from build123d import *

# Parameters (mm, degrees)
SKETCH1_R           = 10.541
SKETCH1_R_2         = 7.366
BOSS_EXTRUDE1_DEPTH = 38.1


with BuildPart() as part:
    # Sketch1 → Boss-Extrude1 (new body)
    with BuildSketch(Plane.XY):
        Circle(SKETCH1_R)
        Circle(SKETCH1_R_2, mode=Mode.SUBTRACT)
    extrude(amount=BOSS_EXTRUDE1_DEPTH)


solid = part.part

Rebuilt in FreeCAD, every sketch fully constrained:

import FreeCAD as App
import Part
import Sketcher

V = App.Vector
Q = App.Units.Quantity

doc = App.newDocument("Part")
body = doc.addObject("PartDesign::Body", "Body")

sketch1 = body.newObject("Sketcher::SketchObject", "Sketch")
sketch1.AttachmentSupport = (doc.getObject("XY_Plane"), [""])
sketch1.MapMode = "FlatFace"
sketch1.addGeometry([
    Part.Circle(V(0, 0, 0), V(0, 0, 1), 11),
    Part.Circle(V(0, 0, 0), V(0, 0, 1), 7),
], False)
sketch1.addConstraint([
    Sketcher.Constraint("Coincident", 0, 3, -1, 1),
    Sketcher.Constraint("Coincident", 1, 3, -1, 1),
    Sketcher.Constraint("Diameter", 0, Q("0.83 in")),
    Sketcher.Constraint("Diameter", 1, Q("0.58 in")),
])
pad1 = body.newObject("PartDesign::Pad", "Pad")
pad1.Profile = sketch1
pad1.Length = Q("1.5 in")

doc.recompute()
